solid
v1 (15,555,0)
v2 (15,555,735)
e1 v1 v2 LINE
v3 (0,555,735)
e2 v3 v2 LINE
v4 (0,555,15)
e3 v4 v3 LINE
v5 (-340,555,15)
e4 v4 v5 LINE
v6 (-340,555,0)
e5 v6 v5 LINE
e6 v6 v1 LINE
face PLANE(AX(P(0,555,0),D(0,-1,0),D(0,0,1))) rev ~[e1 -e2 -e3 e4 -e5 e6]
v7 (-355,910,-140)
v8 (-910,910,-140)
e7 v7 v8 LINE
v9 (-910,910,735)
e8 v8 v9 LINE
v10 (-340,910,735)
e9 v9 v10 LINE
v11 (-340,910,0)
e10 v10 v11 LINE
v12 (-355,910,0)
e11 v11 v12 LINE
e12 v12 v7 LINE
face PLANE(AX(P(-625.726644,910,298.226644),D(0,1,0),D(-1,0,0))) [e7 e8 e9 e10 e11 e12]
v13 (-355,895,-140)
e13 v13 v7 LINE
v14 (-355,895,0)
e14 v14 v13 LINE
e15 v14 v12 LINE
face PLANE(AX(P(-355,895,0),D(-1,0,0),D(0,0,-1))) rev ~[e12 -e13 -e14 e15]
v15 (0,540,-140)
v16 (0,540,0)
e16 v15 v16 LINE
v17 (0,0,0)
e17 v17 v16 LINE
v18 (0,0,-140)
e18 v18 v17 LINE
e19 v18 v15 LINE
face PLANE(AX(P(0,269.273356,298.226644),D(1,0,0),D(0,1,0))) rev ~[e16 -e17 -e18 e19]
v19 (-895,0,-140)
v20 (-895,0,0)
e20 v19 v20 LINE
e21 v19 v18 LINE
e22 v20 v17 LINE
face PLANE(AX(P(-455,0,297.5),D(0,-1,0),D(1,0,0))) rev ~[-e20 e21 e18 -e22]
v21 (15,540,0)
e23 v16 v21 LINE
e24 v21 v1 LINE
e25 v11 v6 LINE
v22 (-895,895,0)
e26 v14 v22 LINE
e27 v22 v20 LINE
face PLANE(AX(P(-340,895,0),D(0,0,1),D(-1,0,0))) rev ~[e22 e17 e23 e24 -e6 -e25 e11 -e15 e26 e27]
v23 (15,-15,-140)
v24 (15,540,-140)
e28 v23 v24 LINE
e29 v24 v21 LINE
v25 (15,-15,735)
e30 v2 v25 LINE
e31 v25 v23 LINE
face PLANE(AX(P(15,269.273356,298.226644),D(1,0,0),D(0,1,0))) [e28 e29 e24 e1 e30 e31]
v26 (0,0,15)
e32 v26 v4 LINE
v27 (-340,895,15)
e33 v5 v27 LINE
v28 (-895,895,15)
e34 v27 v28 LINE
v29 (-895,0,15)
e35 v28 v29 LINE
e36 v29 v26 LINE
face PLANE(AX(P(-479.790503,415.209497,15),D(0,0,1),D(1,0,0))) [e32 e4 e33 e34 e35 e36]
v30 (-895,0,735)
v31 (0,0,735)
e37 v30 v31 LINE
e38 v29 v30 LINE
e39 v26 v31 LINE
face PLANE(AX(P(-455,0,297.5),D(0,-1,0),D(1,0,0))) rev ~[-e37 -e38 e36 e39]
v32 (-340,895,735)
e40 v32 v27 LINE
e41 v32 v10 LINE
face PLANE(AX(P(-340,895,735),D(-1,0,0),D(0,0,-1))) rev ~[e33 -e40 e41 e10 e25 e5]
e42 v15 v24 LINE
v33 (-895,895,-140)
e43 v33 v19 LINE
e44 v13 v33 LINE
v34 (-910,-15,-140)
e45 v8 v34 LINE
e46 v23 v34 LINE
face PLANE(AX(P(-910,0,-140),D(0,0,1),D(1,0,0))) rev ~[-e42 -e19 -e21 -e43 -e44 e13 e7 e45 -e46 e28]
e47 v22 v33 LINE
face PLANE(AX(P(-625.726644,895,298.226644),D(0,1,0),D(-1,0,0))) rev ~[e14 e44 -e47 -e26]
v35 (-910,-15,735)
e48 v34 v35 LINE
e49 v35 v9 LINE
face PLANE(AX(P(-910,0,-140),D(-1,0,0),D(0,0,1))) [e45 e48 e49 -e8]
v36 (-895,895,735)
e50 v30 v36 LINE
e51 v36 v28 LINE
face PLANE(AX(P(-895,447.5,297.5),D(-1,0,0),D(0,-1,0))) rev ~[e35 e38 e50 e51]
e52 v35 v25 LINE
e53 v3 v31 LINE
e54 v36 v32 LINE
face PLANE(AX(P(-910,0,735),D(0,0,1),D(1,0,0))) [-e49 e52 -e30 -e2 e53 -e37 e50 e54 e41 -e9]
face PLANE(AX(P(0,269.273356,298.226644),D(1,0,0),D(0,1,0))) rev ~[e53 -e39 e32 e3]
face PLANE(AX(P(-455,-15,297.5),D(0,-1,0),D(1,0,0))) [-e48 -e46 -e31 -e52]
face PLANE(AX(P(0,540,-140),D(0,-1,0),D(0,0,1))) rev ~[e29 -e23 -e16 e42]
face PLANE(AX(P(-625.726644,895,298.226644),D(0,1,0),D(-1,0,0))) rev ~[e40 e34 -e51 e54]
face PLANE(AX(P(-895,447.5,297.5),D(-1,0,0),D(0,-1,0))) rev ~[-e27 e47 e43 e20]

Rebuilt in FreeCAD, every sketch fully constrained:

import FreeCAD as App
import Part
import Sketcher
from FreeCAD import Vector

doc = App.newDocument("Part")
params = doc.addObject("Spreadsheet::Sheet", "Params")
for row, (alias, value) in enumerate([
    ("sketch1_width", "555 mm"),
    ("sketch1_width2", "15 mm"),
    ("sketch1_height", "140 mm"),
    ("sketch1_height2", "735 mm"),
    ("pad1_length", "15 mm"),
    ("sketch2_width", "895 mm"),
    ("sketch2_width2", "340 mm"),
    ("pad2_length", "15 mm"),
    ("sketch3_width", "895 mm"),
    ("sketch3_height", "875 mm"),
    ("pad3_length", "15 mm"),
    ("sketch4_width", "555 mm"),
    ("sketch4_width2", "570 mm"),
    ("sketch4_height", "875 mm"),
    ("sketch4_height2", "735 mm"),
    ("pad4_length", "15 mm"),
    ("sketch5_width", "910 mm"),
    ("sketch5_height", "875 mm"),
    ("pad5_length", "15 mm"),
], start=1):
    params.set(f"A{row}", alias)
    params.set(f"B{row}", "=" + value)
    params.setAlias(f"B{row}", alias)

body = doc.addObject("PartDesign::Body", "Body")

# Sketch on YZ plane
sketch1 = doc.addObject("Sketcher::SketchObject", "Sketch")
body.addObject(sketch1)
sketch1.AttachmentSupport = (doc.YZ_Plane, [""])
sketch1.MapMode = "FlatFace"
sketch1.addGeometry([
    Part.LineSegment(Vector(-15, -140, 0), Vector(540, -140, 0)),  # 0
    Part.LineSegment(Vector(540, -140, 0), Vector(540, 0, 0)),  # 1
    Part.LineSegment(Vector(540, 0, 0), Vector(555, 0, 0)),  # 2
    Part.LineSegment(Vector(555, 0, 0), Vector(555, 735, 0)),  # 3
    Part.LineSegment(Vector(555, 735, 0), Vector(-15, 735, 0)),  # 4
    Part.LineSegment(Vector(-15, 735, 0), Vector(-15, -140, 0)),  # 5
], False)
sketch1.addConstraint([
    Sketcher.Constraint("Coincident", 0, 2, 1, 1),
    Sketcher.Constraint("Coincident", 1, 2, 2, 1),
    Sketcher.Constraint("Coincident", 2, 2, 3, 1),
    Sketcher.Constraint("Coincident", 3, 2, 4, 1),
    Sketcher.Constraint("Coincident", 4, 2, 5, 1),
    Sketcher.Constraint("Coincident", 5, 2, 0, 1),
    Sketcher.Constraint("Horizontal", 0),
    Sketcher.Constraint("Vertical", 1),
    Sketcher.Constraint("Horizontal", 2),
    Sketcher.Constraint("Vertical", 3),
    Sketcher.Constraint("Horizontal", 4),
    Sketcher.Constraint("Vertical", 5),
    Sketcher.Constraint("PointOnObject", 1, 2, -1),
    Sketcher.Constraint("DistanceX", 0, 1, 0, 2, 555.0),
    Sketcher.Constraint("DistanceX", 2, 1, 2, 2, 15.0),
    Sketcher.Constraint("DistanceY", 1, 1, 1, 2, 140.0),
    Sketcher.Constraint("DistanceY", 3, 1, 3, 2, 735.0),
    Sketcher.Constraint("DistanceX", -1, 1, 0, 2, 540.0),
])
sketch1.setExpression("Constraints[13]", "Params.sketch1_width")
sketch1.setExpression("Constraints[14]", "Params.sketch1_width2")
sketch1.setExpression("Constraints[15]", "Params.sketch1_height")
sketch1.setExpression("Constraints[16]", "Params.sketch1_height2")
pad1 = doc.addObject("PartDesign::Pad", "Pad")
body.addObject(pad1)
pad1.Profile = sketch1
pad1.setExpression("Length", "Params.pad1_length")

# Sketch on XY plane
sketch2 = doc.addObject("Sketcher::SketchObject", "Sketch001")
body.addObject(sketch2)
sketch2.AttachmentSupport = (doc.XY_Plane, [""])
sketch2.MapMode = "FlatFace"
sketch2.addGeometry([
    Part.LineSegment(Vector(-895, 0, 0), Vector(0, 0, 0)),  # 0
    Part.LineSegment(Vector(0, 0, 0), Vector(0, 555, 0)),  # 1
    Part.LineSegment(Vector(0, 555, 0), Vector(-340, 555, 0)),  # 2
    Part.LineSegment(Vector(-340, 555, 0), Vector(-340, 895, 0)),  # 3
    Part.LineSegment(Vector(-340, 895, 0), Vector(-895, 895, 0)),  # 4
    Part.LineSegment(Vector(-895, 895, 0), Vector(-895, 0, 0)),  # 5
], False)
sketch2.addConstraint([
    Sketcher.Constraint("Coincident", 0, 2, 1, 1),
    Sketcher.Constraint("Coincident", 1, 2, 2, 1),
    Sketcher.Constraint("Coincident", 2, 2, 3, 1),
    Sketcher.Constraint("Coincident", 3, 2, 4, 1),
    Sketcher.Constraint("Coincident", 4, 2, 5, 1),
    Sketcher.Constraint("Coincident", 5, 2, 0, 1),
    Sketcher.Constraint("Horizontal", 0),
    Sketcher.Constraint("Vertical", 1),
    Sketcher.Constraint("Horizontal", 2),
    Sketcher.Constraint("Vertical", 3),
    Sketcher.Constraint("Horizontal", 4),
    Sketcher.Constraint("Vertical", 5),
    Sketcher.Constraint("Coincident", 0, 2, -1, 1),
    Sketcher.Constraint("Equal", 4, 1),
    Sketcher.Constraint("Equal", 2, 3),
    Sketcher.Constraint("DistanceX", 0, 1, 0, 2, 895.0),
    Sketcher.Constraint("DistanceX", 2, 2, 2, 1, 340.0),
])
sketch2.setExpression("Constraints[15]", "Params.sketch2_width")
sketch2.setExpression("Constraints[16]", "Params.sketch2_width2")
pad2 = doc.addObject("PartDesign::Pad", "Pad001")
body.addObject(pad2)
pad2.Profile = sketch2
pad2.setExpression("Length", "Params.pad2_length")

# Sketch on YZ plane
sketch3 = doc.addObject("Sketcher::SketchObject", "Sketch002")
body.addObject(sketch3)
sketch3.AttachmentSupport = (doc.YZ_Plane, [""])
sketch3.MapMode = "FlatFace"
sketch3.AttachmentOffset = App.Placement(Vector(0, 0, -895), App.Rotation())
sketch3.addGeometry([
    Part.LineSegment(Vector(0, -140, 0), Vector(0, 735, 0)),
    Part.LineSegment(Vector(0, 735, 0), Vector(895, 735, 0)),
    Part.LineSegment(Vector(895, 735, 0), Vector(895, -140, 0)),
    Part.LineSegment(Vector(895, -140, 0), Vector(0, -140, 0)),
], False)
sketch3.addConstraint([
    Sketcher.Constraint("Coincident", 0, 2, 1, 1),
    Sketcher.Constraint("Coincident", 1, 2, 2, 1),
    Sketcher.Constraint("Coincident", 2, 2, 3, 1),
    Sketcher.Constraint("Coincident", 3, 2, 0, 1),
    Sketcher.Constraint("Vertical", 0),
    Sketcher.Constraint("Horizontal", 1),
    Sketcher.Constraint("Vertical", 2),
    Sketcher.Constraint("Horizontal", 3),
    Sketcher.Constraint("PointOnObject", 0, 2, -2),
    Sketcher.Constraint("DistanceX", 1, 1, 1, 2, 895.0),
    Sketcher.Constraint("DistanceY", 0, 1, 0, 2, 875.0),
    Sketcher.Constraint("DistanceY", -1, 1, 0, 2, 735.0),
])
sketch3.setExpression("Constraints[9]", "Params.sketch3_width")
sketch3.setExpression("Constraints[10]", "Params.sketch3_height")
pad3 = doc.addObject("PartDesign::Pad", "Pad002")
body.addObject(pad3)
pad3.Profile = sketch3
pad3.setExpression("Length", "Params.pad3_length")
pad3.Reversed = True

# Sketch on XZ plane
sketch4 = doc.addObject("Sketcher::SketchObject", "Sketch003")
body.addObject(sketch4)
sketch4.AttachmentSupport = (doc.XZ_Plane, [""])
sketch4.MapMode = "FlatFace"
sketch4.AttachmentOffset = App.Placement(Vector(0, 0, -895), App.Rotation())
sketch4.addGeometry([
    Part.LineSegment(Vector(-355, -140, 0), Vector(-910, -140, 0)),  # 0
    Part.LineSegment(Vector(-910, -140, 0), Vector(-910, 735, 0)),  # 1
    Part.LineSegment(Vector(-910, 735, 0), Vector(-340, 735, 0)),  # 2
    Part.LineSegment(Vector(-340, 735, 0), Vector(-340, 0, 0)),  # 3
    Part.LineSegment(Vector(-340, 0, 0), Vector(-355, 0, 0)),  # 4
    Part.LineSegment(Vector(-355, 0, 0), Vector(-355, -140, 0)),  # 5
], False)
sketch4.addConstraint([
    Sketcher.Constraint("Coincident", 0, 2, 1, 1),
    Sketcher.Constraint("Coincident", 1, 2, 2, 1),
    Sketcher.Constraint("Coincident", 2, 2, 3, 1),
    Sketcher.Constraint("Coincident", 3, 2, 4, 1),
    Sketcher.Constraint("Coincident", 4, 2, 5, 1),
    Sketcher.Constraint("Coincident", 5, 2, 0, 1),
    Sketcher.Constraint("Horizontal", 0),
    Sketcher.Constraint("Vertical", 1),
    Sketcher.Constraint("Horizontal", 2),
    Sketcher.Constraint("Vertical", 3),
    Sketcher.Constraint("Horizontal", 4),
    Sketcher.Constraint("Vertical", 5),
    Sketcher.Constraint("PointOnObject", 3, 2, -1),
    Sketcher.Constraint("DistanceX", 0, 2, 0, 1, 555.0),
    Sketcher.Constraint("DistanceX", 2, 1, 2, 2, 570.0),
    Sketcher.Constraint("DistanceY", 1, 1, 1, 2, 875.0),
    Sketcher.Constraint("DistanceY", 3, 2, 3, 1, 735.0),
    Sketcher.Constraint("DistanceX", 0, 2, -1, 1, 910.0),
])
sketch4.setExpression("Constraints[13]", "Params.sketch4_width")
sketch4.setExpression("Constraints[14]", "Params.sketch4_width2")
sketch4.setExpression("Constraints[15]", "Params.sketch4_height")
sketch4.setExpression("Constraints[16]", "Params.sketch4_height2")
pad4 = doc.addObject("PartDesign::Pad", "Pad003")
body.addObject(pad4)
pad4.Profile = sketch4
pad4.setExpression("Length", "Params.pad4_length")
pad4.Reversed = True

# Sketch on XZ plane
sketch5 = doc.addObject("Sketcher::SketchObject", "Sketch004")
body.addObject(sketch5)
sketch5.AttachmentSupport = (doc.XZ_Plane, [""])
sketch5.MapMode = "FlatFace"
sketch5.addGeometry([
    Part.LineSegment(Vector(-910, 735, 0), Vector(-910, -140, 0)),
    Part.LineSegment(Vector(-910, -140, 0), Vector(0, -140, 0)),
    Part.LineSegment(Vector(0, -140, 0), Vector(0, 735, 0)),
    Part.LineSegment(Vector(0, 735, 0), Vector(-910, 735, 0)),
], False)
sketch5.addConstraint([
    Sketcher.Constraint("Coincident", 0, 2, 1, 1),
    Sketcher.Constraint("Coincident", 1, 2, 2, 1),
    Sketcher.Constraint("Coincident", 2, 2, 3, 1),
    Sketcher.Constraint("Coincident", 3, 2, 0, 1),
    Sketcher.Constraint("Vertical", 0),
    Sketcher.Constraint("Horizontal", 1),
    Sketcher.Constraint("Vertical", 2),
    Sketcher.Constraint("Horizontal", 3),
    Sketcher.Constraint("PointOnObject", 1, 2, -2),
    Sketcher.Constraint("DistanceX", 1, 1, 1, 2, 910.0),
    Sketcher.Constraint("DistanceY", 0, 2, 0, 1, 875.0),
    Sketcher.Constraint("DistanceY", 0, 2, -1, 1, 140.0),
])
sketch5.setExpression("Constraints[9]", "Params.sketch5_width")
sketch5.setExpression("Constraints[10]", "Params.sketch5_height")
pad5 = doc.addObject("PartDesign::Pad", "Pad004")
body.addObject(pad5)
pad5.Profile = sketch5
pad5.setExpression("Length", "Params.pad5_length")

doc.recompute()
